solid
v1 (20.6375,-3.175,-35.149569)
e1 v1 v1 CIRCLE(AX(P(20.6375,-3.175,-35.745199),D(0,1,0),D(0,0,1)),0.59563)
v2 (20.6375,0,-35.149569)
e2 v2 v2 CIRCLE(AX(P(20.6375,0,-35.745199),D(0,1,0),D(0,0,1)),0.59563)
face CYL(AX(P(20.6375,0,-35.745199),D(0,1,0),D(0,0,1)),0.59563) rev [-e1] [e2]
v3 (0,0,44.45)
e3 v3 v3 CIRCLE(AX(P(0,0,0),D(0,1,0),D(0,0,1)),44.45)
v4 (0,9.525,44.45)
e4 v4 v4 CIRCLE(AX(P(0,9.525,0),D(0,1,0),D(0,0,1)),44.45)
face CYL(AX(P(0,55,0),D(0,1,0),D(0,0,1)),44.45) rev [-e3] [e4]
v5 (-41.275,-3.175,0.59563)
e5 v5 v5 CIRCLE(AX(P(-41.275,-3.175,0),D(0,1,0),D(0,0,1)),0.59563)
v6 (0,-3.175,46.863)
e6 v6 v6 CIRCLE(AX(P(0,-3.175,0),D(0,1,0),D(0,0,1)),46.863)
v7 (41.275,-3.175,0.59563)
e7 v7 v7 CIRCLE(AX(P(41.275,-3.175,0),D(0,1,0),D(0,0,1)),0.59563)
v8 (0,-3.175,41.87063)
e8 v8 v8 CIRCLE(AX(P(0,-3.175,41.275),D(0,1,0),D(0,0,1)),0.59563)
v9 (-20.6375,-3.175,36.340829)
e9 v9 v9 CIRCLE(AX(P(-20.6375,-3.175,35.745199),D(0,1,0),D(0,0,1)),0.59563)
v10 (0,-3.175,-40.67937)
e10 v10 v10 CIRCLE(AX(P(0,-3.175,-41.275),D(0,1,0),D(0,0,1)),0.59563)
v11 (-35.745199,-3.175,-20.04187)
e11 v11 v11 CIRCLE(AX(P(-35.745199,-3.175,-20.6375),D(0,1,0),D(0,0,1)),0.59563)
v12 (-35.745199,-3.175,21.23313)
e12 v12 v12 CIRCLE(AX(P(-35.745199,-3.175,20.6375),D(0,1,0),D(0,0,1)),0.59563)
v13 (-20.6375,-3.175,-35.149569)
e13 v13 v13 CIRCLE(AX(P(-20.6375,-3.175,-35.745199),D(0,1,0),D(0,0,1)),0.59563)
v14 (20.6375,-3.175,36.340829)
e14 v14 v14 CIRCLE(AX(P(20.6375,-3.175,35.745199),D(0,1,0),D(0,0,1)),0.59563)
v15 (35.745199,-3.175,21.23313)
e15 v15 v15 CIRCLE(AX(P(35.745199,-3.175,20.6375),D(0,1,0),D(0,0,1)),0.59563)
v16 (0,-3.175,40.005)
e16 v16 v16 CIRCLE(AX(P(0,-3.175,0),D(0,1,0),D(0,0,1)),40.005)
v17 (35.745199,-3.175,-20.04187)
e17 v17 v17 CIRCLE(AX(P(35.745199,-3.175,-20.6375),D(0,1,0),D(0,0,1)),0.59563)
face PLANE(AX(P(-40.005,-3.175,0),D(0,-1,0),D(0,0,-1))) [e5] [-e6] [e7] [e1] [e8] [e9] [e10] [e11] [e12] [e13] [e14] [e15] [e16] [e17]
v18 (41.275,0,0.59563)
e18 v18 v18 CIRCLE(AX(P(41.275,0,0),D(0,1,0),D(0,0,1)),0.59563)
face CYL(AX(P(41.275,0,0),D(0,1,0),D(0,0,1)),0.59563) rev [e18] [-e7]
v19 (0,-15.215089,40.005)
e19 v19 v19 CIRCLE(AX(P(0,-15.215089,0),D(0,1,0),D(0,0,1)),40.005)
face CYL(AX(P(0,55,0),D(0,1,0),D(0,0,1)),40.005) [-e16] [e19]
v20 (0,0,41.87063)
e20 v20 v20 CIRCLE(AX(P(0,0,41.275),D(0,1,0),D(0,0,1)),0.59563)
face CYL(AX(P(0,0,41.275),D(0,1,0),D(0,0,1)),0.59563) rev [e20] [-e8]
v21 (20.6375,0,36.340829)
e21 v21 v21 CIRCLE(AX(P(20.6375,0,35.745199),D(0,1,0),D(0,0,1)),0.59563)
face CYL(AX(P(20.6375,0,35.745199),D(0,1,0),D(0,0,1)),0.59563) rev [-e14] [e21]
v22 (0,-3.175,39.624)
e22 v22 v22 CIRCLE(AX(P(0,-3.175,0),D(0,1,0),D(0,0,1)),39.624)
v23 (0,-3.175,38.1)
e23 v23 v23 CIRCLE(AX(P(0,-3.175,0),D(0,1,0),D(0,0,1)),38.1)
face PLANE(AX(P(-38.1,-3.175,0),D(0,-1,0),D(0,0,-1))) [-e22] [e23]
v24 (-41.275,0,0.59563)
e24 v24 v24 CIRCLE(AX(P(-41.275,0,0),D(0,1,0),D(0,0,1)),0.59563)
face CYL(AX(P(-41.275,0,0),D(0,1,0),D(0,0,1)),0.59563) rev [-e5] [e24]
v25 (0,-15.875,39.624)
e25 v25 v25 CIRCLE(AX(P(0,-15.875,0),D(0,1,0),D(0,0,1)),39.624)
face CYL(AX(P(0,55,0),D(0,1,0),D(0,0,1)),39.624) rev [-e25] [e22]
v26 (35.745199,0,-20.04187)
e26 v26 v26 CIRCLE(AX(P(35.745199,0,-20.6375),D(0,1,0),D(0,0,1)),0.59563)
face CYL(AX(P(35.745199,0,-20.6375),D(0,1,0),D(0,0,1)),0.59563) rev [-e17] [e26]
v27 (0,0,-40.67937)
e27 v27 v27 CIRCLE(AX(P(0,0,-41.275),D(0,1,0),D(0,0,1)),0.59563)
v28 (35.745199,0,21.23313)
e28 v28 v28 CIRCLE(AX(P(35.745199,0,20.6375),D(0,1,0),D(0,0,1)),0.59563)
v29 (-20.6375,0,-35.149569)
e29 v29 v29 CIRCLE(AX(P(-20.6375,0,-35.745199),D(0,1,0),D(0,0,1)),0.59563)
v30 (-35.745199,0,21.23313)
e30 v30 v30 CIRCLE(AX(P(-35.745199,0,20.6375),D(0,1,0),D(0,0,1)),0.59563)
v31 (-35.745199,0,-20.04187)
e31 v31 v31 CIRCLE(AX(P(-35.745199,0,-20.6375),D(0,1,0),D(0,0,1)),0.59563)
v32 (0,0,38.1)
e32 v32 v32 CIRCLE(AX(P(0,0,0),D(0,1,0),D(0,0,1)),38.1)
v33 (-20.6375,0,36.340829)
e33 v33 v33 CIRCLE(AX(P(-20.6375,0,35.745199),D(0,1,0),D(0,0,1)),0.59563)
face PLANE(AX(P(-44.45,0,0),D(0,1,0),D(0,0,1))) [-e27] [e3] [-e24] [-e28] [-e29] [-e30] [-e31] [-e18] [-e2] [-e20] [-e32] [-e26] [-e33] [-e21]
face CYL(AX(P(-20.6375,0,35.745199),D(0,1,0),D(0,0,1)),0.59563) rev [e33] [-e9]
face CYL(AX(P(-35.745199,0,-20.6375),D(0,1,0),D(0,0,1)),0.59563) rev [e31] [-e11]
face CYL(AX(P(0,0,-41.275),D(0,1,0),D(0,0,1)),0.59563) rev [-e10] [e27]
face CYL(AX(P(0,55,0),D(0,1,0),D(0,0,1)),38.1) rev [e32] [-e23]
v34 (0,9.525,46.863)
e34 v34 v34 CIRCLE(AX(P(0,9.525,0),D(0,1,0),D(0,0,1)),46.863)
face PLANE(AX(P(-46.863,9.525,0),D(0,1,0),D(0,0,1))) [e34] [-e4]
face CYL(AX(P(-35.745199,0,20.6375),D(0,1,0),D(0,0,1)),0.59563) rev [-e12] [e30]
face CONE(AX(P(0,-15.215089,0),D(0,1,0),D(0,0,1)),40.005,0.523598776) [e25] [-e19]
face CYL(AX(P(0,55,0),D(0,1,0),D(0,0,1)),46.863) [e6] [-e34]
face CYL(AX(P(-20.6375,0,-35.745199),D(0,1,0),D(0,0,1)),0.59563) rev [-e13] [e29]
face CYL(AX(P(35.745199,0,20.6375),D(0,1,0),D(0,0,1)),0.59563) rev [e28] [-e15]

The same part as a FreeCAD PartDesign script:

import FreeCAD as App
import Part
import Sketcher
Q = App.Units.Quantity


def add_polygon(sketch, points):
    """Adds a closed chain of lines whose ends are joined by coincident constraints."""
    first, n = sketch.GeometryCount, len(points)
    for a, b in zip(points, points[1:] + points[:1]):
        sketch.addGeometry(Part.LineSegment(App.Vector(*a, 0), App.Vector(*b, 0)), False)
    for i in range(n):
        sketch.addConstraint(Sketcher.Constraint("Coincident", first + i, 2, first + (i + 1) % n, 1))

doc = App.newDocument("Part")
body = doc.addObject("PartDesign::Body", "Body")

# Sketch on XY plane
sketch1 = doc.addObject("Sketcher::SketchObject", "Sketch")
body.addObject(sketch1)
sketch1.AttachmentSupport = (doc.XY_Plane, [""])
sketch1.MapMode = "FlatFace"
add_polygon(sketch1, [(-38.1, -3.2), (-38.1, 0), (-44.5, 0), (-44.5, 9.5), (-46.9, 9.5), (-46.9, -3.2), (-40, -3.2), (-40, -15.2), (-39.6, -15.9), (-39.6, -3.2)])  # lines 0-9
sketch1.addConstraint([
    Sketcher.Constraint("Vertical", 0),
    Sketcher.Constraint("Horizontal", 1),
    Sketcher.Constraint("Vertical", 2),
    Sketcher.Constraint("Horizontal", 3),
    Sketcher.Constraint("Vertical", 4),
    Sketcher.Constraint("Horizontal", 5),
    Sketcher.Constraint("Vertical", 6),
    Sketcher.Constraint("Vertical", 8),
    Sketcher.Constraint("Horizontal", 9),
    Sketcher.Constraint("PointOnObject", 0, 2, -1),
    Sketcher.Constraint("Horizontal", 5, 2, 8, 2),
    Sketcher.Constraint("Equal", 4, 8),
    Sketcher.Constraint("DistanceY", 4, 2, 4, 1, Q("0.5 in")),
    Sketcher.Constraint("Angle", 7, Q("-60 deg")),
    Sketcher.Constraint("DistanceX", 1, 2, 1, 1, Q("0.25 in")),
    Sketcher.Constraint("DistanceX", 5, 1, 5, 2, Q("0.27 in")),
    Sketcher.Constraint("DistanceX", 9, 1, 9, 2, Q("0.06 in")),
    Sketcher.Constraint("DistanceX", 0, 2, -1, 1, Q("1.5 in")),
    Sketcher.Constraint("Distance", 7, Q("0.03 in")),
    Sketcher.Constraint("DistanceY", 0, 1, 0, 2, Q("0.125 in")),
])
revolution = doc.addObject("PartDesign::Revolution", "Revolution")
body.addObject(revolution)
revolution.Profile = sketch1
revolution.ReferenceAxis = (sketch1, ["V_Axis"])
revolution.Angle = 360

# Sketch on YZ plane
sketch2 = doc.addObject("Sketcher::SketchObject", "Sketch001")
body.addObject(sketch2)
sketch2.AttachmentSupport = (doc.YZ_Plane, [""])
sketch2.MapMode = "FlatFace"
sketch2.AttachmentOffset = App.Placement(App.Vector(0, 0, -1.625 * 25.4), App.Rotation())
add_polygon(sketch2, [(-3.5, 0), (0, 0), (0, 0.6), (-3.2, 0.6)])  # lines 0-3
sketch2.addConstraint([
    Sketcher.Constraint("Horizontal", 0),
    Sketcher.Constraint("Vertical", 1),
    Sketcher.Constraint("Horizontal", 2),
    Sketcher.Constraint("Coincident", 0, 2, -1, 1),
    Sketcher.Constraint("Angle", 3, Q("-121 deg")),
    Sketcher.Constraint("DistanceX", 2, 2, 2, 1, Q("0.125 in")),
    Sketcher.Constraint("DistanceX", 0, 1, 0, 2, 3.532891),
])
groove = doc.addObject("PartDesign::Groove", "Groove")
body.addObject(groove)
groove.Profile = sketch2
groove.ReferenceAxis = (sketch2, ["H_Axis"])
groove.Angle = 360
doc.recompute()

polarpattern = doc.addObject("PartDesign::PolarPattern", "PolarPattern")
body.addObject(polarpattern)
polarpattern.Originals = [groove]
polarpattern.Axis = (doc.Y_Axis, [""])
polarpattern.Angle = 360
polarpattern.Occurrences = 12
body.Tip = polarpattern

doc.recompute()
